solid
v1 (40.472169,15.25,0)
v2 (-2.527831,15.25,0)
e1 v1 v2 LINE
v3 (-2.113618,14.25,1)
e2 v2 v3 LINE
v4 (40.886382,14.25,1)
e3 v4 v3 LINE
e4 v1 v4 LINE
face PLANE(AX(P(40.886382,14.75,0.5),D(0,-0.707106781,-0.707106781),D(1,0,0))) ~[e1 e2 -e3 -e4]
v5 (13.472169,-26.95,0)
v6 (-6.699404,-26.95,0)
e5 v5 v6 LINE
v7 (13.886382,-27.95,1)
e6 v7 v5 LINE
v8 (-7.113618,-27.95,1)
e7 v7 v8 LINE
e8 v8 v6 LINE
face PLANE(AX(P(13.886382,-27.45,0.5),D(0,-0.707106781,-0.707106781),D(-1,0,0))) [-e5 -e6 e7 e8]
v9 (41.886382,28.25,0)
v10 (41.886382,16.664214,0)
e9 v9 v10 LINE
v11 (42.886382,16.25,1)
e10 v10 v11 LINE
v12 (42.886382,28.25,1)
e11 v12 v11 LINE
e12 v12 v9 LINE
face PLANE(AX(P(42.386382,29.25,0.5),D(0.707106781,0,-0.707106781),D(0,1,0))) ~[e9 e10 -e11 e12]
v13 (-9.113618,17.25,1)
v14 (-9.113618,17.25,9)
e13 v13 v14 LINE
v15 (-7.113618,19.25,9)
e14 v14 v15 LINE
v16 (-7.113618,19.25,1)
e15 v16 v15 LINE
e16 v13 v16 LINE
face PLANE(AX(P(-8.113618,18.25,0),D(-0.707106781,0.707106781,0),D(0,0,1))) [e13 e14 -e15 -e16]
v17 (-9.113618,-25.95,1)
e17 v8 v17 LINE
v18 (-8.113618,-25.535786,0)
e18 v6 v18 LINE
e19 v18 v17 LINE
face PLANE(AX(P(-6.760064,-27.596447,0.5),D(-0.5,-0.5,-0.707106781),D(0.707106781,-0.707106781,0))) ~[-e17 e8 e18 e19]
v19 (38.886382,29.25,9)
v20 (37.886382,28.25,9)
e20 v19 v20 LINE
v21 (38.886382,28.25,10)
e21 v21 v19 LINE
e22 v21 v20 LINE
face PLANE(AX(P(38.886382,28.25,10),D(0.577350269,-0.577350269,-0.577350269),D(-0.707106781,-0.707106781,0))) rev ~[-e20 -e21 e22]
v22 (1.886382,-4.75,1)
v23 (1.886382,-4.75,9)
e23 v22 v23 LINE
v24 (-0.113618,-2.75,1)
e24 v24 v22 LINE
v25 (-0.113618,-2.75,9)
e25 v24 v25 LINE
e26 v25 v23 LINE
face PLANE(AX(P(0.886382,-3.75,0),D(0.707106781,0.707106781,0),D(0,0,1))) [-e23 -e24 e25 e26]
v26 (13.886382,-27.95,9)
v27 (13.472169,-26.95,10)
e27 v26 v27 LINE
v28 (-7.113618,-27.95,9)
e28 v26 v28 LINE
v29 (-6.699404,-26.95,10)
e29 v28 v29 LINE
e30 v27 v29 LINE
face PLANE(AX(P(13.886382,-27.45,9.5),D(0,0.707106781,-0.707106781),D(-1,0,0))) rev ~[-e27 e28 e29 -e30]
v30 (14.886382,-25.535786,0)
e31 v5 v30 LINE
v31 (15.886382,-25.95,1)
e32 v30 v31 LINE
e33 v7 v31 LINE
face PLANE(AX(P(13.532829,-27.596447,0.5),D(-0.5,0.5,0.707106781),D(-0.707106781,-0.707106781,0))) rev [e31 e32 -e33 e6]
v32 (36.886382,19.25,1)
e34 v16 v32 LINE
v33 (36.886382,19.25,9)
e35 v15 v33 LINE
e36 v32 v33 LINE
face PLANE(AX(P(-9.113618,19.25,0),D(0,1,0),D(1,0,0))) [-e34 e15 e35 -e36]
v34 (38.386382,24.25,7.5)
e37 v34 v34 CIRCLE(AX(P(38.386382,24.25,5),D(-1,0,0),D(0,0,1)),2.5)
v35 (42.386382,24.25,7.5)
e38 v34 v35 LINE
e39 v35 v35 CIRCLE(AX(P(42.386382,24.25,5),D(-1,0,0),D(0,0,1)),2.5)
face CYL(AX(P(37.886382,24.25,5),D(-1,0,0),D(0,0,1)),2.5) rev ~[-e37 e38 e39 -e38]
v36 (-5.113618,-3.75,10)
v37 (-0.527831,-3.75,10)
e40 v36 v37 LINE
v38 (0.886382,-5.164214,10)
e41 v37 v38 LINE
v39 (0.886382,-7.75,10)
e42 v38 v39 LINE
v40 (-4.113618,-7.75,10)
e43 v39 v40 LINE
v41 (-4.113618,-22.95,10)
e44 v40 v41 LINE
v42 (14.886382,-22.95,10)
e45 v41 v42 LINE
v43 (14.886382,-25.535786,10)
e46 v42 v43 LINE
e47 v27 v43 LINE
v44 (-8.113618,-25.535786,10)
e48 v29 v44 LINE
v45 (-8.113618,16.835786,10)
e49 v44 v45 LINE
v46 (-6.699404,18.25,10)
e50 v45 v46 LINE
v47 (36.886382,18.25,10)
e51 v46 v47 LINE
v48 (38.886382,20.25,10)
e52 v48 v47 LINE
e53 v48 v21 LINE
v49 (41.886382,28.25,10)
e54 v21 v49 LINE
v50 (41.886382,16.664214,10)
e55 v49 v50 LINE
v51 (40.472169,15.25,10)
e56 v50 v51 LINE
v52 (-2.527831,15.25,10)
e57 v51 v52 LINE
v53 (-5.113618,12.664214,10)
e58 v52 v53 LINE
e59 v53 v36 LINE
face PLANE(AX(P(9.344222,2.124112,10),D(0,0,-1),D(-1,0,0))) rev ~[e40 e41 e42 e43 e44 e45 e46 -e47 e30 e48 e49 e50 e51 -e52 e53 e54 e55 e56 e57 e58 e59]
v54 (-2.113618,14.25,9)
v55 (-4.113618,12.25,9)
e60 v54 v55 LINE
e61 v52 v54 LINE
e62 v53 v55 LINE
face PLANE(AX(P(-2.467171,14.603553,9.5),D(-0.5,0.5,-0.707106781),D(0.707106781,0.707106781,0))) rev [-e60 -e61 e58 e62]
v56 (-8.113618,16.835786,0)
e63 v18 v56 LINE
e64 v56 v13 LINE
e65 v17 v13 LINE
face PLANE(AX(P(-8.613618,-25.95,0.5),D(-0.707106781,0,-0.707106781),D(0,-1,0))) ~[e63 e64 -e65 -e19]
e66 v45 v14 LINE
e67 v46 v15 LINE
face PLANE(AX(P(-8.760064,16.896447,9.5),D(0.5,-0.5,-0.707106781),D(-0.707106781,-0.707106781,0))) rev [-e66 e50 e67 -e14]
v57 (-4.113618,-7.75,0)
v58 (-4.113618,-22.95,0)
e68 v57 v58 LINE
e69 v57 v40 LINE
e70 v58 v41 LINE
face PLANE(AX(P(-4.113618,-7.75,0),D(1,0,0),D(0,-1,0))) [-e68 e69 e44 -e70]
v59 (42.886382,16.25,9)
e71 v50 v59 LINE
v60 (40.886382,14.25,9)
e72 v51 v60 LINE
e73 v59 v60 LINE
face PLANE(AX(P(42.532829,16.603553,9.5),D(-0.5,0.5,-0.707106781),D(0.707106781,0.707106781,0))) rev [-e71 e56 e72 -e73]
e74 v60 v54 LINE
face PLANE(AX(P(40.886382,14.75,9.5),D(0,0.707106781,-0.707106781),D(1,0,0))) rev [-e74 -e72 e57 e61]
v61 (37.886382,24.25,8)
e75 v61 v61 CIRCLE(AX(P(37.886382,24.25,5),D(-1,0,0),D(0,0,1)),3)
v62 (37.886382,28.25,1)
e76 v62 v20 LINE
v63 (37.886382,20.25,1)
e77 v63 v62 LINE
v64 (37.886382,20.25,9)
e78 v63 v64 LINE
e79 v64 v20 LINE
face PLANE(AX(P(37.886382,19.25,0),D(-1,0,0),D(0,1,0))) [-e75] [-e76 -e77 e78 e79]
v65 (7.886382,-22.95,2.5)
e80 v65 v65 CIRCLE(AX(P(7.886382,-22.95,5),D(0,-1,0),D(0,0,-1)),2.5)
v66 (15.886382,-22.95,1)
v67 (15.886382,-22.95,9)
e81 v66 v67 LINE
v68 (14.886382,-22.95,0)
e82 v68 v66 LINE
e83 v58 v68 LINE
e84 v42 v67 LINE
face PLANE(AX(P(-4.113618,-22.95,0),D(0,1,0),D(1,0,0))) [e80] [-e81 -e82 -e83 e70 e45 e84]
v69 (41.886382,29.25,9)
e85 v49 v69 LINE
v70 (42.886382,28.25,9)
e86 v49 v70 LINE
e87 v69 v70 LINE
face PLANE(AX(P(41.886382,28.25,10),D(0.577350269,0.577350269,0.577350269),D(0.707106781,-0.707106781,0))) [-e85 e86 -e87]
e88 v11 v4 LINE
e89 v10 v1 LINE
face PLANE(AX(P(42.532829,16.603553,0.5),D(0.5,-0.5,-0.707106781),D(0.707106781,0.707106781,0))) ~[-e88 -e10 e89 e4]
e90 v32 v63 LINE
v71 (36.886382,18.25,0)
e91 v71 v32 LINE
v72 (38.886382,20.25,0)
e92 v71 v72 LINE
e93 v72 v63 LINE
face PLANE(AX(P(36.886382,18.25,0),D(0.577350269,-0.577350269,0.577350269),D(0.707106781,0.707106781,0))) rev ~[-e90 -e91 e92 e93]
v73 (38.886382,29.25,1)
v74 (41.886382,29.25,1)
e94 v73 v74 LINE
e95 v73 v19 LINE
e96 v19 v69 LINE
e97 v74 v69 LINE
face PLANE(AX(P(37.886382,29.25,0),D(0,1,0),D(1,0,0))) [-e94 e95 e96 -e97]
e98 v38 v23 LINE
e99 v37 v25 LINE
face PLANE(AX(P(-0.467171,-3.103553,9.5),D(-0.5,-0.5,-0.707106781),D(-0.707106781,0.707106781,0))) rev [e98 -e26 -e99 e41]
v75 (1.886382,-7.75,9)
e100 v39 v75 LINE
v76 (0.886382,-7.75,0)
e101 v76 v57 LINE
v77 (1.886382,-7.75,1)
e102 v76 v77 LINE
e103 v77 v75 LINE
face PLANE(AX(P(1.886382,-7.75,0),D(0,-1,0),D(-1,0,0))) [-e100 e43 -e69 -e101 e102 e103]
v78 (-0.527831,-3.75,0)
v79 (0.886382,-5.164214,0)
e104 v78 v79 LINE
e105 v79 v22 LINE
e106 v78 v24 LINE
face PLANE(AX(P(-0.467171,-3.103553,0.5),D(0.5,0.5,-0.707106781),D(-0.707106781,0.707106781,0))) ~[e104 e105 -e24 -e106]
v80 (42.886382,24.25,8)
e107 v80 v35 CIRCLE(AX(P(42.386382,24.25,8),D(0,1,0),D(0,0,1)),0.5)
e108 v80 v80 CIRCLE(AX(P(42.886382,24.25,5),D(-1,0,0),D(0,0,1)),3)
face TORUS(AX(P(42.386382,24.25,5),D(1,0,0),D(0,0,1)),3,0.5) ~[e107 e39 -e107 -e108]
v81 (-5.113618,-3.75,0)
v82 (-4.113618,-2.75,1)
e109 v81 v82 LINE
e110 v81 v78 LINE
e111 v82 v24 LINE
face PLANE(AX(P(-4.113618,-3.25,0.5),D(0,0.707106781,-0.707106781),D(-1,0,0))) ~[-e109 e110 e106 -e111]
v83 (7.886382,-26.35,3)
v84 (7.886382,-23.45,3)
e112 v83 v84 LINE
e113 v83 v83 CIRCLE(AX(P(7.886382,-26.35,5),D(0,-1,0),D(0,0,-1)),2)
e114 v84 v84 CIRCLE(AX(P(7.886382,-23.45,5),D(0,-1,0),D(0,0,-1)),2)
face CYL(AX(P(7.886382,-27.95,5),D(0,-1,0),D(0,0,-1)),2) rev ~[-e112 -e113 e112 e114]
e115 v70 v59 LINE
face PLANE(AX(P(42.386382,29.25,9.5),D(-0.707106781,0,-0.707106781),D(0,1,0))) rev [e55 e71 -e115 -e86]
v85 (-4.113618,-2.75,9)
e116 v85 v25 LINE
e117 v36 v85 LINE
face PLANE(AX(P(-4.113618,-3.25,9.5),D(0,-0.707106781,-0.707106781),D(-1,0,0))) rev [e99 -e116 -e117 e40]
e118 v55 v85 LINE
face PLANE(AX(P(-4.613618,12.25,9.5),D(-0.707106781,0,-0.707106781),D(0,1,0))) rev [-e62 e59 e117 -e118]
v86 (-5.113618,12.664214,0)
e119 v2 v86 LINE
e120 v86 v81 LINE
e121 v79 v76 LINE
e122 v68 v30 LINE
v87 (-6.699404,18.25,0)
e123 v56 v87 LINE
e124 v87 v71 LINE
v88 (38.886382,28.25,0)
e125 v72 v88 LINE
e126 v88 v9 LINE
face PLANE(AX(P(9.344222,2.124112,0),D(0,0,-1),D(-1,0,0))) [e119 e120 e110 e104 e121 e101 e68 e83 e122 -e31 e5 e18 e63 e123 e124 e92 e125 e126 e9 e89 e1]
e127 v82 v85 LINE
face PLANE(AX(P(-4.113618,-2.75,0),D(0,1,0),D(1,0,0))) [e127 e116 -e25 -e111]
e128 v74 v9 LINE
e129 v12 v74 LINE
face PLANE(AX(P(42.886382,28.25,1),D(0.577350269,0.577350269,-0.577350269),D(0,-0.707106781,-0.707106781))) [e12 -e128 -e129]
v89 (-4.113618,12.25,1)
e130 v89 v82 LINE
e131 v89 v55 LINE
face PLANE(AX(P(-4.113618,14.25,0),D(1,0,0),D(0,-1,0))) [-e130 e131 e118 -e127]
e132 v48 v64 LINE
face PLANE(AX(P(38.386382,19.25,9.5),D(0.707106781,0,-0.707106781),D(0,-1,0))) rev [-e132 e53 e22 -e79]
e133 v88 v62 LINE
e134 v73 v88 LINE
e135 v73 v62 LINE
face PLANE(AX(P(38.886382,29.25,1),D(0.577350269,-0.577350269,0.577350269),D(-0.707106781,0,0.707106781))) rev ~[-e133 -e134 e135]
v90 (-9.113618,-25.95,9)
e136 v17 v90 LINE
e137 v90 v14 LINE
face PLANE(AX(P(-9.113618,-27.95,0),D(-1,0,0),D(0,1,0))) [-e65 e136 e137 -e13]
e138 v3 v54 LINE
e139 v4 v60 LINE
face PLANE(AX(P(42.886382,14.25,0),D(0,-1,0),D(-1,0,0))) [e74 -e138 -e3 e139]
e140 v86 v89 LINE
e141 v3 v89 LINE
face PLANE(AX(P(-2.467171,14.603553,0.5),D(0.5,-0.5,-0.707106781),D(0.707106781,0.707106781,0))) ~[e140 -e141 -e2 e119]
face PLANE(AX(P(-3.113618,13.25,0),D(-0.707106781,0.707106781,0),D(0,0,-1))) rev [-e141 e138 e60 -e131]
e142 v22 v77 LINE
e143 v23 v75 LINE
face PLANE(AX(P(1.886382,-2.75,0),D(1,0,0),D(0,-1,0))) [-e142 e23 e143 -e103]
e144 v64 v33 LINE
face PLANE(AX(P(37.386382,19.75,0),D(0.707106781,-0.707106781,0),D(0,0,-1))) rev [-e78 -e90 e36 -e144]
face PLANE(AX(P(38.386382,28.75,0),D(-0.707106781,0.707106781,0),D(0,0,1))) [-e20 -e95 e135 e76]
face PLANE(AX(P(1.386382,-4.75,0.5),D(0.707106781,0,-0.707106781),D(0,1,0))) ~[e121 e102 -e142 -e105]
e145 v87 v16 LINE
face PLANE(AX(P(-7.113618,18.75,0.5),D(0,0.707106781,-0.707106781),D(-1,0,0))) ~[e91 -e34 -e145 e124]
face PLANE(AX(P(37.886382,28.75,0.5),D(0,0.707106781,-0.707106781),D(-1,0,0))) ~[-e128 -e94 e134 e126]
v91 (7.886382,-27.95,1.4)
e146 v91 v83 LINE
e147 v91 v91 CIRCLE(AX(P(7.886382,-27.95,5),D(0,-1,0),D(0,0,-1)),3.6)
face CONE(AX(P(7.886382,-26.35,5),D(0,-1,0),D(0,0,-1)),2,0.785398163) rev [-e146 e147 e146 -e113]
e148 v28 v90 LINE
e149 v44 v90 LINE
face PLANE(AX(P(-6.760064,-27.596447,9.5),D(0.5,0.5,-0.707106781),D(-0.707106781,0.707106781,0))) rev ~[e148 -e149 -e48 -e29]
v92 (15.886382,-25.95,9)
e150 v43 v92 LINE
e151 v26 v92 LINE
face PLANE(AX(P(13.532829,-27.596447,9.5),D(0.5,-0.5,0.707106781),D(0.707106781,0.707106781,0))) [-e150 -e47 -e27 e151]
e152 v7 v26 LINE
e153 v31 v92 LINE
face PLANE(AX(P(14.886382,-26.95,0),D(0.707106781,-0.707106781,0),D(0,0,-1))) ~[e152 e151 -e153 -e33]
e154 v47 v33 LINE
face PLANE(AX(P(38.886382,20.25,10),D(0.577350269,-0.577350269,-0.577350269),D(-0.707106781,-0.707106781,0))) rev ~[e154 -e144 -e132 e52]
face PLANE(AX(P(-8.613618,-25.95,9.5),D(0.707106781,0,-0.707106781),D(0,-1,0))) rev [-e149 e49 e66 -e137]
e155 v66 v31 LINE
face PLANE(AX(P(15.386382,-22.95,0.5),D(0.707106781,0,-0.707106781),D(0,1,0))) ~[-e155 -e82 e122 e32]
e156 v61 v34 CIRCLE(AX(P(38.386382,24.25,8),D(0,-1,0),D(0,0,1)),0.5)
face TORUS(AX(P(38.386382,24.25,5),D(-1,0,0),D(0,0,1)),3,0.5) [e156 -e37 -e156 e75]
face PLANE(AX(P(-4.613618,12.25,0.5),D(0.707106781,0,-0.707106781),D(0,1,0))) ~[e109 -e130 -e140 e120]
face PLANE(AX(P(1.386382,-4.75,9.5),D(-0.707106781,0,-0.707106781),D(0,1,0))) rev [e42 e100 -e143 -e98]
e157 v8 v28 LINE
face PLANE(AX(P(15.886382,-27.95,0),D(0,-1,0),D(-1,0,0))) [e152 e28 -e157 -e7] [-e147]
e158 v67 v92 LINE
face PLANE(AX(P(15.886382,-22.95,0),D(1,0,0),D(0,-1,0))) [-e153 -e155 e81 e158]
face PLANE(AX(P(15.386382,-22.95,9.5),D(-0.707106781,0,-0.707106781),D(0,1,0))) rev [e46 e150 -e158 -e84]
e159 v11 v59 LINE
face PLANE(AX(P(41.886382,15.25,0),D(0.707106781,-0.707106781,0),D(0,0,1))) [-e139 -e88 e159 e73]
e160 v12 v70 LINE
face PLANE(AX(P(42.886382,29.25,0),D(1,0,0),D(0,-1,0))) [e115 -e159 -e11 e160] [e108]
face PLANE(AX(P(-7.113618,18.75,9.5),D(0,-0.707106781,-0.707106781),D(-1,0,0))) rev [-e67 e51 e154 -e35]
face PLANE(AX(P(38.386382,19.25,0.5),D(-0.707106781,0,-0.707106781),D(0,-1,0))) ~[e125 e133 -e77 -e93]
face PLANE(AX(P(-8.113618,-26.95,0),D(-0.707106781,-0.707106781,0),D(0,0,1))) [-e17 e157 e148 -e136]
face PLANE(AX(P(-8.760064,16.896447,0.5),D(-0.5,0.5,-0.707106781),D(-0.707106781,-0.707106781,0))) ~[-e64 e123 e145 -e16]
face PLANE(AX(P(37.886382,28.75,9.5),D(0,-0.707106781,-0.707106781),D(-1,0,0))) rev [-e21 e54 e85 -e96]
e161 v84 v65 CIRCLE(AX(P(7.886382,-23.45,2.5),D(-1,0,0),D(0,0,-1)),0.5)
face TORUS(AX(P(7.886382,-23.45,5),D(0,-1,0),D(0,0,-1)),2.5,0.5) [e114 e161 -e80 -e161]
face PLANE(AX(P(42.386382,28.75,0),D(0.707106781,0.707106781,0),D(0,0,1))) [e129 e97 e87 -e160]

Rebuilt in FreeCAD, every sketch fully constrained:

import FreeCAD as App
import Part
import Sketcher

V = App.Vector
Q = App.Units.Quantity


def edges_at(feature, points):
    """Names of the edges that pass closest to the given points."""
    edges = feature.Shape.Edges
    near = lambda p: min(range(len(edges)), key=lambda i: edges[i].distToShape(Part.Vertex(*p))[0])
    return sorted({f"Edge{near(p) + 1}" for p in points})


def add_polygon(sketch, points):
    """Adds a closed chain of lines whose ends are joined by coincident constraints."""
    first, n = sketch.GeometryCount, len(points)
    for a, b in zip(points, points[1:] + points[:1]):
        sketch.addGeometry(Part.LineSegment(App.Vector(*a, 0), App.Vector(*b, 0)), False)
    for i in range(n):
        sketch.addConstraint(Sketcher.Constraint("Coincident", first + i, 2, first + (i + 1) % n, 1))

doc = App.newDocument("Part")
body = doc.addObject("PartDesign::Body", "Body")

# Sketch on XY plane
sketch1 = body.newObject("Sketcher::SketchObject", "Sketch")
sketch1.AttachmentSupport = (doc.getObject("XY_Plane"), [""])
sketch1.MapMode = "FlatFace"
add_polygon(sketch1, [(-4.113618, -7.75), (1.886382, -7.75), (1.886382, -2.75), (-4.113618, -2.75), (-4.113618, 14.25), (42.886382, 14.25), (42.886382, 29.25), (37.886382, 29.25), (37.886382, 19.25), (-9.113618, 19.25), (-9.113618, -27.95), (15.886382, -27.95), (15.886382, -22.95), (-4.113618, -22.95)])  # lines 0-13
sketch1.addConstraint([
    Sketcher.Constraint("Horizontal", 0),
    Sketcher.Constraint("Vertical", 1),
    Sketcher.Constraint("Horizontal", 2),
    Sketcher.Constraint("Vertical", 3),
    Sketcher.Constraint("Horizontal", 4),
    Sketcher.Constraint("Vertical", 5),
    Sketcher.Constraint("Horizontal", 6),
    Sketcher.Constraint("Vertical", 7),
    Sketcher.Constraint("Horizontal", 8),
    Sketcher.Constraint("Vertical", 9),
    Sketcher.Constraint("Horizontal", 10),
    Sketcher.Constraint("Vertical", 11),
    Sketcher.Constraint("Horizontal", 12),
    Sketcher.Constraint("Vertical", 13),
    Sketcher.Constraint("Vertical", 3, 2, 12, 2),
    Sketcher.Constraint("Equal", 4, 8),
    Sketcher.Constraint("Equal", 6, 1),
    Sketcher.Constraint("Equal", 1, 11),
    Sketcher.Constraint("DistanceX", 0, 1, 0, 2, Q("6 mm")),
    Sketcher.Constraint("DistanceX", 4, 1, 4, 2, Q("47 mm")),
    Sketcher.Constraint("DistanceX", 6, 2, 6, 1, Q("5 mm")),
    Sketcher.Constraint("DistanceX", 10, 1, 10, 2, Q("25 mm")),
    Sketcher.Constraint("DistanceY", 3, 1, 3, 2, Q("17 mm")),
    Sketcher.Constraint("DistanceY", 5, 1, 5, 2, Q("15 mm")),
    Sketcher.Constraint("DistanceY", 7, 2, 7, 1, Q("10 mm")),
    Sketcher.Constraint("DistanceY", 9, 2, 9, 1, Q("47.2 mm")),
    Sketcher.Constraint("DistanceY", 0, 2, -1, 1, Q("7.75 mm")),
    Sketcher.Constraint("DistanceX", -1, 1, 0, 2, Q("1.886382 mm")),
])
pad1 = body.newObject("PartDesign::Pad", "Pad")
pad1.Profile = sketch1
pad1.Length = 10

# Sketch on XZ plane
sketch2 = body.newObject("Sketcher::SketchObject", "Sketch001")
sketch2.AttachmentSupport = (doc.getObject("XZ_Plane"), [""])
sketch2.MapMode = "FlatFace"
sketch2.AttachmentOffset = App.Placement(V(0, 0, 27.95), App.Rotation())
sketch2.addGeometry(Part.Circle(V(7.886382, 5, 0), V(0, 0, 1), 2), False)
sketch2.addConstraint([
    Sketcher.Constraint("Diameter", 0, Q("4 mm")),
    Sketcher.Constraint("DistanceY", -1, 1, 0, 3, Q("5 mm")),
    Sketcher.Constraint("DistanceX", -1, 1, 0, 3, Q("7.886382 mm")),
])
pocket1 = body.newObject("PartDesign::Pocket", "Pocket")
pocket1.Profile = sketch2
pocket1.Length = 15
doc.recompute()

chamfer = body.newObject("PartDesign::Chamfer", "Chamfer")
chamfer.Base = (pocket1, edges_at(pocket1, [(7.886, -27.95, 7)]))
chamfer.Size = 1.6
doc.recompute()

fillet = body.newObject("PartDesign::Fillet", "Fillet")
fillet.Base = (chamfer, edges_at(chamfer, [(7.886, -22.95, 7)]))
fillet.Radius = 0.5
doc.recompute()

chamfer2 = body.newObject("PartDesign::Chamfer", "Chamfer001")
chamfer2.Base = (fillet, edges_at(fillet, [
    (15.886, -27.95, 5),
    (-9.114, -27.95, 5),
    (-9.114, 19.25, 5),
    (42.886, 14.25, 5),
    (-4.114, 14.25, 5),
    (1.886, -2.75, 5),
]))
chamfer2.Size = 2

# Sketch on YZ plane
sketch3 = body.newObject("Sketcher::SketchObject", "Sketch002")
sketch3.AttachmentSupport = (doc.getObject("YZ_Plane"), [""])
sketch3.MapMode = "FlatFace"
sketch3.AttachmentOffset = App.Placement(V(0, 0, 37.886382), App.Rotation())
sketch3.addGeometry(Part.Circle(V(24.25, 5, 0), V(0, 0, 1), 2.5), False)
sketch3.addConstraint([
    Sketcher.Constraint("Diameter", 0, Q("5 mm")),
    Sketcher.Constraint("DistanceY", -1, 1, 0, 3, Q("5 mm")),
    Sketcher.Constraint("DistanceX", -1, 1, 0, 3, Q("24.25 mm")),
])
pocket2 = body.newObject("PartDesign::Pocket", "Pocket001")
pocket2.Profile = sketch3
pocket2.Length = 10
pocket2.Reversed = True
doc.recompute()

chamfer3 = body.newObject("PartDesign::Chamfer", "Chamfer002")
chamfer3.Base = (pocket2, edges_at(pocket2, [
    (-4.114, 4.75, 10),
    (15.386, 19.25, 0),
    (37.886, 24.25, 0),
    (40.386, 29.25, 0),
    (-4.114, 4.75, 0),
    (1.886, -6.25, 0),
    (37.886, 19.25, 5),
    (37.886, 29.25, 5),
    (42.886, 29.25, 5),
    (40.386, 29.25, 10),
    (37.886, 24.25, 10),
    (15.386, 19.25, 10),
    (1.886, -6.25, 10),
    (-9.114, -4.35, 0),
    (-9.114, -4.35, 10),
    (15.886, -24.45, 0),
    (3.386, -27.95, 0),
    (42.886, 22.75, 0),
    (19.386, 14.25, 0),
    (-2.114, -2.75, 0),
    (0.886, -3.75, 0),
    (14.886, -26.95, 0),
    (-8.114, -26.95, 0),
    (41.886, 15.25, 0),
    (-8.114, 18.25, 0),
    (-2.114, -2.75, 10),
    (19.386, 14.25, 10),
    (42.886, 22.75, 10),
    (3.386, -27.95, 10),
    (15.886, -24.45, 10),
    (0.886, -3.75, 10),
    (14.886, -26.95, 10),
    (-8.114, -26.95, 10),
    (41.886, 15.25, 10),
    (-8.114, 18.25, 10),
    (-3.114, 13.25, 0),
    (-3.114, 13.25, 10),
]))
chamfer3.Size = 1
doc.recompute()

fillet2 = body.newObject("PartDesign::Fillet", "Fillet001")
fillet2.Base = (chamfer3, edges_at(chamfer3, [(42.886, 24.25, 2.5), (37.886, 24.25, 2.5)]))
fillet2.Radius = 0.5

doc.recompute()
